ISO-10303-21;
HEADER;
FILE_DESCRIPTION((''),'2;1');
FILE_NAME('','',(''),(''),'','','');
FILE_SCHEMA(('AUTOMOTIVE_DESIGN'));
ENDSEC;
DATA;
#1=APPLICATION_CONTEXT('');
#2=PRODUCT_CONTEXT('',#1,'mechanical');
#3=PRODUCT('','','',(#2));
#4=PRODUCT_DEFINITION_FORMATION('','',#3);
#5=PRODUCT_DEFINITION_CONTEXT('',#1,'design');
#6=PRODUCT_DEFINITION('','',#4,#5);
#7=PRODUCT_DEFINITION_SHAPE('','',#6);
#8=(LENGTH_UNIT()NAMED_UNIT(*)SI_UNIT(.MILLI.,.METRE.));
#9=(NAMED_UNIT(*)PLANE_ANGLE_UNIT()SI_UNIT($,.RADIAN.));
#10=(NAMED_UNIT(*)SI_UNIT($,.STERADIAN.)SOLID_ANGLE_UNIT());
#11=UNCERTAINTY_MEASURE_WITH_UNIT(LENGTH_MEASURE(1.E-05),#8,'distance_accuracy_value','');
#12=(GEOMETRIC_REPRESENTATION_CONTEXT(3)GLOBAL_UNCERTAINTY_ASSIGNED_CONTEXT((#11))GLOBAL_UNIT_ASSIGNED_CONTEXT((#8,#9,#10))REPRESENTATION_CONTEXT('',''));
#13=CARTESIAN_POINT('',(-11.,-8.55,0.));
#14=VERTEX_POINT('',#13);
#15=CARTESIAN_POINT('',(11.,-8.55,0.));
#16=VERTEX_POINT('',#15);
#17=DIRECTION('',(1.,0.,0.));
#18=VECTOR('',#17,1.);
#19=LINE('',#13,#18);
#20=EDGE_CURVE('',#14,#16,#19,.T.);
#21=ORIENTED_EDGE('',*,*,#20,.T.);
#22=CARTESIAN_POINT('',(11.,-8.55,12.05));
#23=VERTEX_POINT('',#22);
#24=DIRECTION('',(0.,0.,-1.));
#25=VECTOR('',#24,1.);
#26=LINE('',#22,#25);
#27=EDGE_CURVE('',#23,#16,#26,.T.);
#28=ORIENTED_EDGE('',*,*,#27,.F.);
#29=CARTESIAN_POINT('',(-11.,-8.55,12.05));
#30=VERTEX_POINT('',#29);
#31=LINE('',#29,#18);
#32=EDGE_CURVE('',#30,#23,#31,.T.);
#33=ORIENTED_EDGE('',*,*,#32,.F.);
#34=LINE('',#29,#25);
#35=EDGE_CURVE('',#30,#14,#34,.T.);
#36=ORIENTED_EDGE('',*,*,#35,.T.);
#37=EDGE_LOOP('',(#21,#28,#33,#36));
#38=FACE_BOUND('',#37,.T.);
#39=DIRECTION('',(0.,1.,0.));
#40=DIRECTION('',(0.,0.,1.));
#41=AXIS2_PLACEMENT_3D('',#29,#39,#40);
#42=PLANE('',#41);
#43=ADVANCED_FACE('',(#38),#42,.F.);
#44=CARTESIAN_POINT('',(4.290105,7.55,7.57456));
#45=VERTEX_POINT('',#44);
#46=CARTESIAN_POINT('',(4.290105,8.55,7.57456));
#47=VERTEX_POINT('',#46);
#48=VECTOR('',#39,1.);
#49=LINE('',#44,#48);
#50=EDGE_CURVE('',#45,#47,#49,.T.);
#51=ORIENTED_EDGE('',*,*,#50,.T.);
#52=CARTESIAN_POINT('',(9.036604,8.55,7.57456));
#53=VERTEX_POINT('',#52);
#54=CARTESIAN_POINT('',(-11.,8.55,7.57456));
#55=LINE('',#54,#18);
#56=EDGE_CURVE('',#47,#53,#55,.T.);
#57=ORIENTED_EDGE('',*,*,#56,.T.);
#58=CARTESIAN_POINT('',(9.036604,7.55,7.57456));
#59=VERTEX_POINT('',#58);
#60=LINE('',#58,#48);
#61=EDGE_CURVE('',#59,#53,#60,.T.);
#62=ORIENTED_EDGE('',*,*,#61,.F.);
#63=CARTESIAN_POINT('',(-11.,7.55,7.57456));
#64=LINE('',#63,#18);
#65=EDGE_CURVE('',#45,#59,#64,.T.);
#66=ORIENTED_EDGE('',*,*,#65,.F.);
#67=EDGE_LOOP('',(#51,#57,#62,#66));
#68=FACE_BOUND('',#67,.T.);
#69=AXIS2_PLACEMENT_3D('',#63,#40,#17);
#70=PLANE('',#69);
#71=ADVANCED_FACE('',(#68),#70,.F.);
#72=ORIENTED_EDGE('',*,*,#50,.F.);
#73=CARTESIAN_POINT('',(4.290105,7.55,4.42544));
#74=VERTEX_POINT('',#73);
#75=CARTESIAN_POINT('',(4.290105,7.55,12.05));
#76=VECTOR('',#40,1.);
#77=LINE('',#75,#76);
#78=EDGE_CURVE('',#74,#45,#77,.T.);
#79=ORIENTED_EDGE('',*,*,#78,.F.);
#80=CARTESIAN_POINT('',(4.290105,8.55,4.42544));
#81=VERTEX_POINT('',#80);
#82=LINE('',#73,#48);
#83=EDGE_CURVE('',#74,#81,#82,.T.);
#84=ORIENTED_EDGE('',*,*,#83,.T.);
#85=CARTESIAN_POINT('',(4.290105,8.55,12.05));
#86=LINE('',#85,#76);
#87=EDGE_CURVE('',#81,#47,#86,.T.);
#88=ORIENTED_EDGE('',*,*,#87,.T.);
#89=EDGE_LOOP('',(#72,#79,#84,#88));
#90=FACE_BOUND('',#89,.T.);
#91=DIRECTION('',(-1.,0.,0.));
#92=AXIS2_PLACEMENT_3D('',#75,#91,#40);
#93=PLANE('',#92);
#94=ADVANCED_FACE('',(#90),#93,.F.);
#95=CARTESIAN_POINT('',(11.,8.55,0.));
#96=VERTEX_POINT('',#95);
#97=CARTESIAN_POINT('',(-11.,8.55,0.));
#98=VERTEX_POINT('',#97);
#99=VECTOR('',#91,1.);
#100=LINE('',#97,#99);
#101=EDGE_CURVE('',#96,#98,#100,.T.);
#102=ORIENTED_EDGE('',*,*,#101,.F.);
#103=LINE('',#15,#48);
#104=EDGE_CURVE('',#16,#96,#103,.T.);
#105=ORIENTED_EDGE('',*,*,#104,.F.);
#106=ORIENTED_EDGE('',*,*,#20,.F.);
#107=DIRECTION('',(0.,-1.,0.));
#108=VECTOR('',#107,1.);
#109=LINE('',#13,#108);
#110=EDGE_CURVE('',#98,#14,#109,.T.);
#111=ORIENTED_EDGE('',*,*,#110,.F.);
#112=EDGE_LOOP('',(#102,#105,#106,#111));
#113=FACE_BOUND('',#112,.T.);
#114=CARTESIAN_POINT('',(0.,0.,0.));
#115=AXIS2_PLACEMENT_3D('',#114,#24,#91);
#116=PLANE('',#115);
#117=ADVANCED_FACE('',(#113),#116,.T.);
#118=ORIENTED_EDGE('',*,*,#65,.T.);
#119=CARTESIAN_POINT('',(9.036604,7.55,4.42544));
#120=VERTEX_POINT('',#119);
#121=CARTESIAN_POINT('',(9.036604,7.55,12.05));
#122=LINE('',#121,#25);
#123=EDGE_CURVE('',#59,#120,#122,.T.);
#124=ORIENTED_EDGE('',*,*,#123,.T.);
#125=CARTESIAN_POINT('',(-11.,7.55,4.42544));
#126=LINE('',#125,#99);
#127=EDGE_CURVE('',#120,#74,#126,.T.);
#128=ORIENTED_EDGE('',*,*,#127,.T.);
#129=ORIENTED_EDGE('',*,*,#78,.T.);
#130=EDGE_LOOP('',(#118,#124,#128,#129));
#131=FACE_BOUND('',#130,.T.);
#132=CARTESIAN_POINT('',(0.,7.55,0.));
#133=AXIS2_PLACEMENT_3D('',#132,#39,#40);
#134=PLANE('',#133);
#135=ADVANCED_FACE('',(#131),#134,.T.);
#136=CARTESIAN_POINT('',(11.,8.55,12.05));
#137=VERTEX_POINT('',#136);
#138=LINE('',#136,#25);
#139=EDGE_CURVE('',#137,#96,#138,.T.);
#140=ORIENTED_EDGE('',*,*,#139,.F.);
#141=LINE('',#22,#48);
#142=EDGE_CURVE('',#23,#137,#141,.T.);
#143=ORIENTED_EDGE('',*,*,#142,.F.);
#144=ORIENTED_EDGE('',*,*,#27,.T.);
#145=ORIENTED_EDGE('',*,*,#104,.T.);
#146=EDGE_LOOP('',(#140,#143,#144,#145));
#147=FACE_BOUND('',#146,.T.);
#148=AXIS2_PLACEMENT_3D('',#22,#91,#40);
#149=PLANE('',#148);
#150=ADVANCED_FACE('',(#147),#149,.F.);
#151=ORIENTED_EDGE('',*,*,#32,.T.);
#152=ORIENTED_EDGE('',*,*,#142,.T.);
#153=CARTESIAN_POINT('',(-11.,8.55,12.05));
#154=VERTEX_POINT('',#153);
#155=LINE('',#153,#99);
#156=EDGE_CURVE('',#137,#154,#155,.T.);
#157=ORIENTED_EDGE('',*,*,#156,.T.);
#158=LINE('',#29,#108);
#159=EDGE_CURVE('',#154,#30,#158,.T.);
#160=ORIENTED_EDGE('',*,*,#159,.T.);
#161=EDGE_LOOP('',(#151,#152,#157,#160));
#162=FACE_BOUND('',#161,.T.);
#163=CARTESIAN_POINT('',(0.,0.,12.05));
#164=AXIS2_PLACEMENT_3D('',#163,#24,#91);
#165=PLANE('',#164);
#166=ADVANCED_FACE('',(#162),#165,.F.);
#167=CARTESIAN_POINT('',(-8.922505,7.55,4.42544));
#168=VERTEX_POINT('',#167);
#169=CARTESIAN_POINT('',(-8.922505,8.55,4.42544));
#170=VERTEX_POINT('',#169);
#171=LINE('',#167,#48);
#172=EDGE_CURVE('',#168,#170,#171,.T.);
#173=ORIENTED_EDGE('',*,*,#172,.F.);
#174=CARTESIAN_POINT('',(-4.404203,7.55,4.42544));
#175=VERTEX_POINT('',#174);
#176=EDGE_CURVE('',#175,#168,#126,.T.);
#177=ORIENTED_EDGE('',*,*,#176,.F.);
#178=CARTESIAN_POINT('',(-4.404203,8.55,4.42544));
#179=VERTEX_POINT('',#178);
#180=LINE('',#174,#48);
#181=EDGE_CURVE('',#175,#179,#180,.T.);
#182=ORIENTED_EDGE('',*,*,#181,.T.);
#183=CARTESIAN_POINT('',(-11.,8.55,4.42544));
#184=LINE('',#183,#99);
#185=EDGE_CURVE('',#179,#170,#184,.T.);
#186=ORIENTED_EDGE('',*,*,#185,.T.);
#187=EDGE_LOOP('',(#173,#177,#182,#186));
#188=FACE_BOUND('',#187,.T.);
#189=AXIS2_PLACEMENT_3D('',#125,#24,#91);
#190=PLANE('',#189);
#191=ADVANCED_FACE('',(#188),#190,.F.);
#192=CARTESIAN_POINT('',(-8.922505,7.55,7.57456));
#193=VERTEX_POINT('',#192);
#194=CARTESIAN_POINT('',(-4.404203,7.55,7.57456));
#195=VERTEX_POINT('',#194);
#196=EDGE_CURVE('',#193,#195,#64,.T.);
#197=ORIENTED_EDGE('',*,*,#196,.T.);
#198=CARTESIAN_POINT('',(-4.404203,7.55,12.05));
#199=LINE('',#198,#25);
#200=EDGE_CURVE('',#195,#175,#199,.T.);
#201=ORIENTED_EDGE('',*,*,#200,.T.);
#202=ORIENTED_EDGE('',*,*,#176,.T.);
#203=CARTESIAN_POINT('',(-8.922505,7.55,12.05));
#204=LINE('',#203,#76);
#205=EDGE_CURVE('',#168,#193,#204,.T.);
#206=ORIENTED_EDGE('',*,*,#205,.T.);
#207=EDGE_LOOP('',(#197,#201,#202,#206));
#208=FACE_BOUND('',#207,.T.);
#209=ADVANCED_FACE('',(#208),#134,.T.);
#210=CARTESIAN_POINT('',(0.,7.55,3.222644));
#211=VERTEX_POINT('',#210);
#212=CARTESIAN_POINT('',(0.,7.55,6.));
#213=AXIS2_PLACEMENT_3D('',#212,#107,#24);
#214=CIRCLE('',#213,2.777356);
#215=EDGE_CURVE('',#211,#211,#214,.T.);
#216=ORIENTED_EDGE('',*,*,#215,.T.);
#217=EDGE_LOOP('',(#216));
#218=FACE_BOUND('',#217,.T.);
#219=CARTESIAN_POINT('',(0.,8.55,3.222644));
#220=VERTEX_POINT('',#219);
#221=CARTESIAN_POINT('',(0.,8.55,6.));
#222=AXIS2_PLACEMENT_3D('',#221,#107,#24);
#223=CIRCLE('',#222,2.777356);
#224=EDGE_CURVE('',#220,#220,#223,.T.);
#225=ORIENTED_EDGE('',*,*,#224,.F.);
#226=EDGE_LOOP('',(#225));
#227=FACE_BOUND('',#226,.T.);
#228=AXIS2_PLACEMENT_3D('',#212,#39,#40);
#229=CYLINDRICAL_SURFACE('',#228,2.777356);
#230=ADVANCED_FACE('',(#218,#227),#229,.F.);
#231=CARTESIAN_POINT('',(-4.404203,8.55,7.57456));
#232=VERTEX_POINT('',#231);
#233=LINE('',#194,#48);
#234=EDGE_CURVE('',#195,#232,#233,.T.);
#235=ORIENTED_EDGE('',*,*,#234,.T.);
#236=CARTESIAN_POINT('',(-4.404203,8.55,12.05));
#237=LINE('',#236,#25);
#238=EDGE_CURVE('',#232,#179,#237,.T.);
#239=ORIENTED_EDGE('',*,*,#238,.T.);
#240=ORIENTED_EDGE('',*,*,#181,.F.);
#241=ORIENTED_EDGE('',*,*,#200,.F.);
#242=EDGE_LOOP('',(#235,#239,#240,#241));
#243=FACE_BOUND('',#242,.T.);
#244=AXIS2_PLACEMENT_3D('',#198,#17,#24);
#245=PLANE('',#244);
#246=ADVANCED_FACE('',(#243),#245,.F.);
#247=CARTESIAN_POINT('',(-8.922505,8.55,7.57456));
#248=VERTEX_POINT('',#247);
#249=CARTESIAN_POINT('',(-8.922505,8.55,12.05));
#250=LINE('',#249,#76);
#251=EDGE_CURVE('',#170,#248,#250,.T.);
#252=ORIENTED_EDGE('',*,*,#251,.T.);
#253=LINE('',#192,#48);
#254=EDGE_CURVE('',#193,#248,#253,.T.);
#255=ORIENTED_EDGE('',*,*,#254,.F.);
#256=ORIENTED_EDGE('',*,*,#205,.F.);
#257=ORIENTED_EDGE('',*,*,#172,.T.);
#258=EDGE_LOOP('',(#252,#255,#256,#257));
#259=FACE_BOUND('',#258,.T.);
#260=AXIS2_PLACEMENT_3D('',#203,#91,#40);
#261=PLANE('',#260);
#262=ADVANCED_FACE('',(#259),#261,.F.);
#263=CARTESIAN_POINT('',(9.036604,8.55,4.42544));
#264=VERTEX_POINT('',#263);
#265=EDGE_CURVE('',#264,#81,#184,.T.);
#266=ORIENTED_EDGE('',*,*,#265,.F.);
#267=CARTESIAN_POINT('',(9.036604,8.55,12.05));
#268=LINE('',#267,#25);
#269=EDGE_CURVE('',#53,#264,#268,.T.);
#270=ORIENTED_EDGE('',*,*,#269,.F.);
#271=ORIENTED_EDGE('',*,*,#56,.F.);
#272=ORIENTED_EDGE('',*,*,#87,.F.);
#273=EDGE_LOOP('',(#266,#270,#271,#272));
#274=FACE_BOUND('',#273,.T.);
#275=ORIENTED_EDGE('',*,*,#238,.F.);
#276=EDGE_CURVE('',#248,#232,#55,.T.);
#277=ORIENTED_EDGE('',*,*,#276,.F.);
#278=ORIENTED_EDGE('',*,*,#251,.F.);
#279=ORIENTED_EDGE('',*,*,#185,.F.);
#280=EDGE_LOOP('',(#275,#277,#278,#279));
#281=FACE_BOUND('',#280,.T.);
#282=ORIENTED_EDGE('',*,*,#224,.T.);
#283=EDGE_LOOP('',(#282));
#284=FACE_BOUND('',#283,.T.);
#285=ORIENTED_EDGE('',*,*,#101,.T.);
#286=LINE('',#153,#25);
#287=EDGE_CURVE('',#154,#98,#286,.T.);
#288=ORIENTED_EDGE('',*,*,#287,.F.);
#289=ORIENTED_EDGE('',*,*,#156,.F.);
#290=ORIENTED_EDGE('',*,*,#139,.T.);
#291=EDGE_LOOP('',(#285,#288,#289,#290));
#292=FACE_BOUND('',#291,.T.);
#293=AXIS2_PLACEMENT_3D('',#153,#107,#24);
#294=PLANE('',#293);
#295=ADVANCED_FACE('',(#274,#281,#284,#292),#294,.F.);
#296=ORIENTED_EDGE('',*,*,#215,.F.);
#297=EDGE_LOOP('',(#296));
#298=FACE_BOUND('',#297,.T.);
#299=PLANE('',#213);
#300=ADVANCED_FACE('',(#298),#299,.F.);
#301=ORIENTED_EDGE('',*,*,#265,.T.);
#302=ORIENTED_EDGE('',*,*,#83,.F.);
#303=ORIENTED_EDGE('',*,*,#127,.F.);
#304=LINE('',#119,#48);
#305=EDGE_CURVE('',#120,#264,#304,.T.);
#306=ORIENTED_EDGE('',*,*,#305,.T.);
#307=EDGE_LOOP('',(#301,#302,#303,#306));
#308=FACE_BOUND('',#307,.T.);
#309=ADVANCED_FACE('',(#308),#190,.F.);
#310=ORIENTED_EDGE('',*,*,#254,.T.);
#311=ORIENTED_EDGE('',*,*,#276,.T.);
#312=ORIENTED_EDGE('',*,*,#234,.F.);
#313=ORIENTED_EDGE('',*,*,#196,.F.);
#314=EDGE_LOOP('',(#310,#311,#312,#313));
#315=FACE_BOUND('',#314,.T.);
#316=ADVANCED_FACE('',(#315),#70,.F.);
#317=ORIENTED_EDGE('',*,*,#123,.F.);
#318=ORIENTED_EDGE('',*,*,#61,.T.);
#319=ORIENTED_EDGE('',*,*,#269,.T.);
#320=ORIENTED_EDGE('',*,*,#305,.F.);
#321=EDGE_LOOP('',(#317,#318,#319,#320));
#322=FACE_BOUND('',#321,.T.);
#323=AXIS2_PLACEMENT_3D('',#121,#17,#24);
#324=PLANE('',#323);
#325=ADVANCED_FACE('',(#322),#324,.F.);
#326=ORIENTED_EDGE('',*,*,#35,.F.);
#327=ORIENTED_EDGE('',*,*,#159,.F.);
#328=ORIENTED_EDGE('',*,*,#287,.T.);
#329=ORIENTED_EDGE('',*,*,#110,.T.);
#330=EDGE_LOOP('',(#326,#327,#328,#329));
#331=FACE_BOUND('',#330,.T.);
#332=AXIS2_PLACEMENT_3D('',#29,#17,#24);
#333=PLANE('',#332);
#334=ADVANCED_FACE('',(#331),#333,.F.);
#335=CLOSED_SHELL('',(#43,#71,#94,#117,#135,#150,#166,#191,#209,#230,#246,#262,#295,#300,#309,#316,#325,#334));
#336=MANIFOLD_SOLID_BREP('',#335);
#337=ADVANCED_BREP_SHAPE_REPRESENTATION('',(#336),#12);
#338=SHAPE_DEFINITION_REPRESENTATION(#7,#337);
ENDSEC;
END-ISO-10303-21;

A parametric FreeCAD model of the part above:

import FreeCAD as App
import Part
import Sketcher

doc = App.newDocument("Part")
params = doc.addObject("Spreadsheet::Sheet", "Params")
for row, (alias, value) in enumerate([
    ("sketch1_width", "22 mm"),
    ("sketch1_height", "17.1 mm"),
    ("pad1_length", "12.05 mm"),
    ("pocket1_length", "1 mm"),
], start=1):
    params.set(f"A{row}", alias)
    params.set(f"B{row}", "=" + value)
    params.setAlias(f"B{row}", alias)

body = doc.addObject("PartDesign::Body", "Body")

sketch1 = doc.addObject("Sketcher::SketchObject", "Sketch")
body.addObject(sketch1)
sketch1.AttachmentSupport = (doc.XY_Plane, [""])
sketch1.MapMode = "FlatFace"
sketch1.addGeometry([
    Part.LineSegment(App.Vector(-11, 8.55, 0), App.Vector(-11, -8.55, 0)),
    Part.LineSegment(App.Vector(-11, -8.55, 0), App.Vector(11, -8.55, 0)),
    Part.LineSegment(App.Vector(11, -8.55, 0), App.Vector(11, 8.55, 0)),
    Part.LineSegment(App.Vector(11, 8.55, 0), App.Vector(-11, 8.55, 0)),
], False)
sketch1.addConstraint([
    Sketcher.Constraint("Coincident", 0, 2, 1, 1),
    Sketcher.Constraint("Coincident", 1, 2, 2, 1),
    Sketcher.Constraint("Coincident", 2, 2, 3, 1),
    Sketcher.Constraint("Coincident", 3, 2, 0, 1),
    Sketcher.Constraint("Vertical", 0),
    Sketcher.Constraint("Horizontal", 1),
    Sketcher.Constraint("Vertical", 2),
    Sketcher.Constraint("Horizontal", 3),
    Sketcher.Constraint("Symmetric", 0, 2, 2, 2, -1, 1),
    Sketcher.Constraint("DistanceX", 1, 1, 1, 2, 22.0),
    Sketcher.Constraint("DistanceY", 0, 2, 0, 1, 17.1),
])
sketch1.setExpression("Constraints[9]", "Params.sketch1_width")
sketch1.setExpression("Constraints[10]", "Params.sketch1_height")
pad1 = doc.addObject("PartDesign::Pad", "Pad")
body.addObject(pad1)
pad1.Profile = sketch1
pad1.setExpression("Length", "Params.pad1_length")

sketch2 = doc.addObject("Sketcher::SketchObject", "Sketch001")
body.addObject(sketch2)
sketch2.AttachmentSupport = (doc.XZ_Plane, [""])
sketch2.MapMode = "FlatFace"
sketch2.AttachmentOffset = App.Placement(App.Vector(0, 0, -8.55), App.Rotation())
sketch2.addGeometry([
    Part.Circle(App.Vector(0, 6, 0), App.Vector(0, 0, 1), 2.777356),
    Part.LineSegment(App.Vector(4.290105, 4.42544, 0), App.Vector(4.290105, 7.57456, 0)),
    Part.LineSegment(App.Vector(4.290105, 7.57456, 0), App.Vector(9.036604, 7.57456, 0)),
    Part.LineSegment(App.Vector(9.036604, 7.57456, 0), App.Vector(9.036604, 4.42544, 0)),
    Part.LineSegment(App.Vector(9.036604, 4.42544, 0), App.Vector(4.290105, 4.42544, 0)),
    Part.LineSegment(App.Vector(-8.922505, 4.42544, 0), App.Vector(-8.922505, 7.57456, 0)),
    Part.LineSegment(App.Vector(-8.922505, 7.57456, 0), App.Vector(-4.404203, 7.57456, 0)),
    Part.LineSegment(App.Vector(-4.404203, 7.57456, 0), App.Vector(-4.404203, 4.42544, 0)),
    Part.LineSegment(App.Vector(-4.404203, 4.42544, 0), App.Vector(-8.922505, 4.42544, 0)),
], False)
sketch2.addConstraint([
    Sketcher.Constraint("Coincident", 1, 2, 2, 1),
    Sketcher.Constraint("Coincident", 2, 2, 3, 1),
    Sketcher.Constraint("Coincident", 3, 2, 4, 1),
    Sketcher.Constraint("Coincident", 4, 2, 1, 1),
    Sketcher.Constraint("Coincident", 5, 2, 6, 1),
    Sketcher.Constraint("Coincident", 6, 2, 7, 1),
    Sketcher.Constraint("Coincident", 7, 2, 8, 1),
    Sketcher.Constraint("Coincident", 8, 2, 5, 1),
    Sketcher.Constraint("Vertical", 1),
    Sketcher.Constraint("Horizontal", 2),
    Sketcher.Constraint("Vertical", 3),
    Sketcher.Constraint("Horizontal", 4),
    Sketcher.Constraint("Vertical", 5),
    Sketcher.Constraint("Horizontal", 6),
    Sketcher.Constraint("Vertical", 7),
    Sketcher.Constraint("Horizontal", 8),
    Sketcher.Constraint("PointOnObject", 0, 3, -2),
    Sketcher.Constraint("Horizontal", 2, 2, 5, 2),
    Sketcher.Constraint("Horizontal", 4, 2, 7, 2),
    Sketcher.Constraint("DistanceY", -1, 1, 0, 3, 6.0),
    Sketcher.Constraint("Diameter", 0, 5.554712),
    Sketcher.Constraint("DistanceX", 2, 1, 2, 2, 4.746499),
    Sketcher.Constraint("DistanceX", 6, 1, 6, 2, 4.518302),
    Sketcher.Constraint("DistanceY", 1, 1, 1, 2, 3.14912),
    Sketcher.Constraint("DistanceY", -1, 1, 1, 2, 7.57456),
    Sketcher.Constraint("DistanceX", 5, 2, 1, 2, 13.21261),
    Sketcher.Constraint("DistanceX", -1, 1, 1, 2, 4.290105),
])
pocket1 = doc.addObject("PartDesign::Pocket", "Pocket")
body.addObject(pocket1)
pocket1.Profile = sketch2
pocket1.setExpression("Length", "Params.pocket1_length")
pocket1.Reversed = True

doc.recompute()
